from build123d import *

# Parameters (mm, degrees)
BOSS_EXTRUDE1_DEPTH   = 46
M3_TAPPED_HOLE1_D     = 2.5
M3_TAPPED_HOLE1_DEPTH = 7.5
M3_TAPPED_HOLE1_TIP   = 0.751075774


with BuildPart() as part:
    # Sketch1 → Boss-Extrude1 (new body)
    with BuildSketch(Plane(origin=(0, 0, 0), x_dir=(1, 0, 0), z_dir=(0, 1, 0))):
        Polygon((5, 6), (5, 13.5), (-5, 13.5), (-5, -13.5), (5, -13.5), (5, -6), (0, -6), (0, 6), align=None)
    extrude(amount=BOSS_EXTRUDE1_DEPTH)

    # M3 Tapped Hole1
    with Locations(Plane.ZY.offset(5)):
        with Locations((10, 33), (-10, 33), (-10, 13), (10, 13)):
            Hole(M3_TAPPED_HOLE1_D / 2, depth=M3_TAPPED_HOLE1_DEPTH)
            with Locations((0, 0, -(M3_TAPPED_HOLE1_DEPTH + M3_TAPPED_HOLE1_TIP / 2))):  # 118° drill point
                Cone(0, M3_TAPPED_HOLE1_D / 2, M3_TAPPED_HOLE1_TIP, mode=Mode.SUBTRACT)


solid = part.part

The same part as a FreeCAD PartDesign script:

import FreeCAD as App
import Part
import Sketcher
from FreeCAD import Vector
Q = App.Units.Quantity


def add_polygon(sketch, points):
    """Adds a closed chain of lines whose ends are joined by coincident constraints."""
    first, n = sketch.GeometryCount, len(points)
    for a, b in zip(points, points[1:] + points[:1]):
        sketch.addGeometry(Part.LineSegment(App.Vector(*a, 0), App.Vector(*b, 0)), False)
    for i in range(n):
        sketch.addConstraint(Sketcher.Constraint("Coincident", first + i, 2, first + (i + 1) % n, 1))

doc = App.newDocument("Part")
body = doc.addObject("PartDesign::Body", "Body")

# Sketch on XZ plane
sketch1 = body.newObject("Sketcher::SketchObject", "Sketch")
sketch1.AttachmentSupport = (doc.getObject("XZ_Plane"), [""])
sketch1.MapMode = "FlatFace"
add_polygon(sketch1, [(5, -6), (5, -13.5), (-5, -13.5), (-5, 13.5), (5, 13.5), (5, 6), (0, 6), (0, -6)])  # lines 0-7
sketch1.addConstraint([
    Sketcher.Constraint("Vertical", 0),
    Sketcher.Constraint("Horizontal", 1),
    Sketcher.Constraint("Vertical", 2),
    Sketcher.Constraint("Horizontal", 3),
    Sketcher.Constraint("Vertical", 4),
    Sketcher.Constraint("Horizontal", 5),
    Sketcher.Constraint("Vertical", 6),
    Sketcher.Constraint("Horizontal", 7),
    Sketcher.Constraint("Symmetric", 0, 2, 2, 2, -1, 1),
    Sketcher.Constraint("Symmetric", 5, 2, 6, 2, -1, 1),
    Sketcher.Constraint("Vertical", 0, 2, 3, 2),
    Sketcher.Constraint("DistanceX", 1, 2, 1, 1, Q("10 mm")),
    Sketcher.Constraint("DistanceY", 2, 1, 2, 2, Q("27 mm")),
    Sketcher.Constraint("DistanceY", 6, 2, 6, 1, Q("12 mm")),
])
pad1 = body.newObject("PartDesign::Pad", "Pad")
pad1.Profile = sketch1
pad1.Length = 46
pad1.Reversed = True

# Sketch on YZ plane
sketch2 = body.newObject("Sketcher::SketchObject", "Sketch001")
sketch2.AttachmentSupport = (doc.getObject("YZ_Plane"), [""])
sketch2.MapMode = "FlatFace"
sketch2.AttachmentOffset = App.Placement(Vector(0, 0, -5), App.Rotation())
sketch2.addGeometry([
    Part.Circle(Vector(33, 10, 0), Vector(0, 0, 1), 1.25),
    Part.Circle(Vector(33, -10, 0), Vector(0, 0, 1), 1.25),
    Part.Circle(Vector(13, -10, 0), Vector(0, 0, 1), 1.25),
    Part.Circle(Vector(13, 10, 0), Vector(0, 0, 1), 1.25),
], False)
sketch2.addConstraint([
    Sketcher.Constraint("Equal", 0, 1),
    Sketcher.Constraint("Equal", 1, 2),
    Sketcher.Constraint("Equal", 2, 3),
    Sketcher.Constraint("Symmetric", 0, 3, 1, 3, -1),
    Sketcher.Constraint("Symmetric", 2, 3, 3, 3, -1),
    Sketcher.Constraint("Horizontal", 1, 3, 2, 3),
    Sketcher.Constraint("Diameter", 0, Q("2.5 mm")),
    Sketcher.Constraint("DistanceX", -1, 1, 0, 3, Q("33 mm")),
    Sketcher.Constraint("DistanceY", -1, 1, 0, 3, Q("10 mm")),
    Sketcher.Constraint("DistanceX", -1, 1, 2, 3, Q("13 mm")),
])
doc.recompute()
hole = body.newObject("PartDesign::Hole", "Hole")
hole.Profile = sketch2
hole.ThreadType = "None"
hole.Diameter = 2.5
hole.DepthType = "Dimension"
hole.Depth = 7.5
hole.DrillPoint = "Angled"
hole.DrillPointAngle = 118
hole.Reversed = True

doc.recompute()
